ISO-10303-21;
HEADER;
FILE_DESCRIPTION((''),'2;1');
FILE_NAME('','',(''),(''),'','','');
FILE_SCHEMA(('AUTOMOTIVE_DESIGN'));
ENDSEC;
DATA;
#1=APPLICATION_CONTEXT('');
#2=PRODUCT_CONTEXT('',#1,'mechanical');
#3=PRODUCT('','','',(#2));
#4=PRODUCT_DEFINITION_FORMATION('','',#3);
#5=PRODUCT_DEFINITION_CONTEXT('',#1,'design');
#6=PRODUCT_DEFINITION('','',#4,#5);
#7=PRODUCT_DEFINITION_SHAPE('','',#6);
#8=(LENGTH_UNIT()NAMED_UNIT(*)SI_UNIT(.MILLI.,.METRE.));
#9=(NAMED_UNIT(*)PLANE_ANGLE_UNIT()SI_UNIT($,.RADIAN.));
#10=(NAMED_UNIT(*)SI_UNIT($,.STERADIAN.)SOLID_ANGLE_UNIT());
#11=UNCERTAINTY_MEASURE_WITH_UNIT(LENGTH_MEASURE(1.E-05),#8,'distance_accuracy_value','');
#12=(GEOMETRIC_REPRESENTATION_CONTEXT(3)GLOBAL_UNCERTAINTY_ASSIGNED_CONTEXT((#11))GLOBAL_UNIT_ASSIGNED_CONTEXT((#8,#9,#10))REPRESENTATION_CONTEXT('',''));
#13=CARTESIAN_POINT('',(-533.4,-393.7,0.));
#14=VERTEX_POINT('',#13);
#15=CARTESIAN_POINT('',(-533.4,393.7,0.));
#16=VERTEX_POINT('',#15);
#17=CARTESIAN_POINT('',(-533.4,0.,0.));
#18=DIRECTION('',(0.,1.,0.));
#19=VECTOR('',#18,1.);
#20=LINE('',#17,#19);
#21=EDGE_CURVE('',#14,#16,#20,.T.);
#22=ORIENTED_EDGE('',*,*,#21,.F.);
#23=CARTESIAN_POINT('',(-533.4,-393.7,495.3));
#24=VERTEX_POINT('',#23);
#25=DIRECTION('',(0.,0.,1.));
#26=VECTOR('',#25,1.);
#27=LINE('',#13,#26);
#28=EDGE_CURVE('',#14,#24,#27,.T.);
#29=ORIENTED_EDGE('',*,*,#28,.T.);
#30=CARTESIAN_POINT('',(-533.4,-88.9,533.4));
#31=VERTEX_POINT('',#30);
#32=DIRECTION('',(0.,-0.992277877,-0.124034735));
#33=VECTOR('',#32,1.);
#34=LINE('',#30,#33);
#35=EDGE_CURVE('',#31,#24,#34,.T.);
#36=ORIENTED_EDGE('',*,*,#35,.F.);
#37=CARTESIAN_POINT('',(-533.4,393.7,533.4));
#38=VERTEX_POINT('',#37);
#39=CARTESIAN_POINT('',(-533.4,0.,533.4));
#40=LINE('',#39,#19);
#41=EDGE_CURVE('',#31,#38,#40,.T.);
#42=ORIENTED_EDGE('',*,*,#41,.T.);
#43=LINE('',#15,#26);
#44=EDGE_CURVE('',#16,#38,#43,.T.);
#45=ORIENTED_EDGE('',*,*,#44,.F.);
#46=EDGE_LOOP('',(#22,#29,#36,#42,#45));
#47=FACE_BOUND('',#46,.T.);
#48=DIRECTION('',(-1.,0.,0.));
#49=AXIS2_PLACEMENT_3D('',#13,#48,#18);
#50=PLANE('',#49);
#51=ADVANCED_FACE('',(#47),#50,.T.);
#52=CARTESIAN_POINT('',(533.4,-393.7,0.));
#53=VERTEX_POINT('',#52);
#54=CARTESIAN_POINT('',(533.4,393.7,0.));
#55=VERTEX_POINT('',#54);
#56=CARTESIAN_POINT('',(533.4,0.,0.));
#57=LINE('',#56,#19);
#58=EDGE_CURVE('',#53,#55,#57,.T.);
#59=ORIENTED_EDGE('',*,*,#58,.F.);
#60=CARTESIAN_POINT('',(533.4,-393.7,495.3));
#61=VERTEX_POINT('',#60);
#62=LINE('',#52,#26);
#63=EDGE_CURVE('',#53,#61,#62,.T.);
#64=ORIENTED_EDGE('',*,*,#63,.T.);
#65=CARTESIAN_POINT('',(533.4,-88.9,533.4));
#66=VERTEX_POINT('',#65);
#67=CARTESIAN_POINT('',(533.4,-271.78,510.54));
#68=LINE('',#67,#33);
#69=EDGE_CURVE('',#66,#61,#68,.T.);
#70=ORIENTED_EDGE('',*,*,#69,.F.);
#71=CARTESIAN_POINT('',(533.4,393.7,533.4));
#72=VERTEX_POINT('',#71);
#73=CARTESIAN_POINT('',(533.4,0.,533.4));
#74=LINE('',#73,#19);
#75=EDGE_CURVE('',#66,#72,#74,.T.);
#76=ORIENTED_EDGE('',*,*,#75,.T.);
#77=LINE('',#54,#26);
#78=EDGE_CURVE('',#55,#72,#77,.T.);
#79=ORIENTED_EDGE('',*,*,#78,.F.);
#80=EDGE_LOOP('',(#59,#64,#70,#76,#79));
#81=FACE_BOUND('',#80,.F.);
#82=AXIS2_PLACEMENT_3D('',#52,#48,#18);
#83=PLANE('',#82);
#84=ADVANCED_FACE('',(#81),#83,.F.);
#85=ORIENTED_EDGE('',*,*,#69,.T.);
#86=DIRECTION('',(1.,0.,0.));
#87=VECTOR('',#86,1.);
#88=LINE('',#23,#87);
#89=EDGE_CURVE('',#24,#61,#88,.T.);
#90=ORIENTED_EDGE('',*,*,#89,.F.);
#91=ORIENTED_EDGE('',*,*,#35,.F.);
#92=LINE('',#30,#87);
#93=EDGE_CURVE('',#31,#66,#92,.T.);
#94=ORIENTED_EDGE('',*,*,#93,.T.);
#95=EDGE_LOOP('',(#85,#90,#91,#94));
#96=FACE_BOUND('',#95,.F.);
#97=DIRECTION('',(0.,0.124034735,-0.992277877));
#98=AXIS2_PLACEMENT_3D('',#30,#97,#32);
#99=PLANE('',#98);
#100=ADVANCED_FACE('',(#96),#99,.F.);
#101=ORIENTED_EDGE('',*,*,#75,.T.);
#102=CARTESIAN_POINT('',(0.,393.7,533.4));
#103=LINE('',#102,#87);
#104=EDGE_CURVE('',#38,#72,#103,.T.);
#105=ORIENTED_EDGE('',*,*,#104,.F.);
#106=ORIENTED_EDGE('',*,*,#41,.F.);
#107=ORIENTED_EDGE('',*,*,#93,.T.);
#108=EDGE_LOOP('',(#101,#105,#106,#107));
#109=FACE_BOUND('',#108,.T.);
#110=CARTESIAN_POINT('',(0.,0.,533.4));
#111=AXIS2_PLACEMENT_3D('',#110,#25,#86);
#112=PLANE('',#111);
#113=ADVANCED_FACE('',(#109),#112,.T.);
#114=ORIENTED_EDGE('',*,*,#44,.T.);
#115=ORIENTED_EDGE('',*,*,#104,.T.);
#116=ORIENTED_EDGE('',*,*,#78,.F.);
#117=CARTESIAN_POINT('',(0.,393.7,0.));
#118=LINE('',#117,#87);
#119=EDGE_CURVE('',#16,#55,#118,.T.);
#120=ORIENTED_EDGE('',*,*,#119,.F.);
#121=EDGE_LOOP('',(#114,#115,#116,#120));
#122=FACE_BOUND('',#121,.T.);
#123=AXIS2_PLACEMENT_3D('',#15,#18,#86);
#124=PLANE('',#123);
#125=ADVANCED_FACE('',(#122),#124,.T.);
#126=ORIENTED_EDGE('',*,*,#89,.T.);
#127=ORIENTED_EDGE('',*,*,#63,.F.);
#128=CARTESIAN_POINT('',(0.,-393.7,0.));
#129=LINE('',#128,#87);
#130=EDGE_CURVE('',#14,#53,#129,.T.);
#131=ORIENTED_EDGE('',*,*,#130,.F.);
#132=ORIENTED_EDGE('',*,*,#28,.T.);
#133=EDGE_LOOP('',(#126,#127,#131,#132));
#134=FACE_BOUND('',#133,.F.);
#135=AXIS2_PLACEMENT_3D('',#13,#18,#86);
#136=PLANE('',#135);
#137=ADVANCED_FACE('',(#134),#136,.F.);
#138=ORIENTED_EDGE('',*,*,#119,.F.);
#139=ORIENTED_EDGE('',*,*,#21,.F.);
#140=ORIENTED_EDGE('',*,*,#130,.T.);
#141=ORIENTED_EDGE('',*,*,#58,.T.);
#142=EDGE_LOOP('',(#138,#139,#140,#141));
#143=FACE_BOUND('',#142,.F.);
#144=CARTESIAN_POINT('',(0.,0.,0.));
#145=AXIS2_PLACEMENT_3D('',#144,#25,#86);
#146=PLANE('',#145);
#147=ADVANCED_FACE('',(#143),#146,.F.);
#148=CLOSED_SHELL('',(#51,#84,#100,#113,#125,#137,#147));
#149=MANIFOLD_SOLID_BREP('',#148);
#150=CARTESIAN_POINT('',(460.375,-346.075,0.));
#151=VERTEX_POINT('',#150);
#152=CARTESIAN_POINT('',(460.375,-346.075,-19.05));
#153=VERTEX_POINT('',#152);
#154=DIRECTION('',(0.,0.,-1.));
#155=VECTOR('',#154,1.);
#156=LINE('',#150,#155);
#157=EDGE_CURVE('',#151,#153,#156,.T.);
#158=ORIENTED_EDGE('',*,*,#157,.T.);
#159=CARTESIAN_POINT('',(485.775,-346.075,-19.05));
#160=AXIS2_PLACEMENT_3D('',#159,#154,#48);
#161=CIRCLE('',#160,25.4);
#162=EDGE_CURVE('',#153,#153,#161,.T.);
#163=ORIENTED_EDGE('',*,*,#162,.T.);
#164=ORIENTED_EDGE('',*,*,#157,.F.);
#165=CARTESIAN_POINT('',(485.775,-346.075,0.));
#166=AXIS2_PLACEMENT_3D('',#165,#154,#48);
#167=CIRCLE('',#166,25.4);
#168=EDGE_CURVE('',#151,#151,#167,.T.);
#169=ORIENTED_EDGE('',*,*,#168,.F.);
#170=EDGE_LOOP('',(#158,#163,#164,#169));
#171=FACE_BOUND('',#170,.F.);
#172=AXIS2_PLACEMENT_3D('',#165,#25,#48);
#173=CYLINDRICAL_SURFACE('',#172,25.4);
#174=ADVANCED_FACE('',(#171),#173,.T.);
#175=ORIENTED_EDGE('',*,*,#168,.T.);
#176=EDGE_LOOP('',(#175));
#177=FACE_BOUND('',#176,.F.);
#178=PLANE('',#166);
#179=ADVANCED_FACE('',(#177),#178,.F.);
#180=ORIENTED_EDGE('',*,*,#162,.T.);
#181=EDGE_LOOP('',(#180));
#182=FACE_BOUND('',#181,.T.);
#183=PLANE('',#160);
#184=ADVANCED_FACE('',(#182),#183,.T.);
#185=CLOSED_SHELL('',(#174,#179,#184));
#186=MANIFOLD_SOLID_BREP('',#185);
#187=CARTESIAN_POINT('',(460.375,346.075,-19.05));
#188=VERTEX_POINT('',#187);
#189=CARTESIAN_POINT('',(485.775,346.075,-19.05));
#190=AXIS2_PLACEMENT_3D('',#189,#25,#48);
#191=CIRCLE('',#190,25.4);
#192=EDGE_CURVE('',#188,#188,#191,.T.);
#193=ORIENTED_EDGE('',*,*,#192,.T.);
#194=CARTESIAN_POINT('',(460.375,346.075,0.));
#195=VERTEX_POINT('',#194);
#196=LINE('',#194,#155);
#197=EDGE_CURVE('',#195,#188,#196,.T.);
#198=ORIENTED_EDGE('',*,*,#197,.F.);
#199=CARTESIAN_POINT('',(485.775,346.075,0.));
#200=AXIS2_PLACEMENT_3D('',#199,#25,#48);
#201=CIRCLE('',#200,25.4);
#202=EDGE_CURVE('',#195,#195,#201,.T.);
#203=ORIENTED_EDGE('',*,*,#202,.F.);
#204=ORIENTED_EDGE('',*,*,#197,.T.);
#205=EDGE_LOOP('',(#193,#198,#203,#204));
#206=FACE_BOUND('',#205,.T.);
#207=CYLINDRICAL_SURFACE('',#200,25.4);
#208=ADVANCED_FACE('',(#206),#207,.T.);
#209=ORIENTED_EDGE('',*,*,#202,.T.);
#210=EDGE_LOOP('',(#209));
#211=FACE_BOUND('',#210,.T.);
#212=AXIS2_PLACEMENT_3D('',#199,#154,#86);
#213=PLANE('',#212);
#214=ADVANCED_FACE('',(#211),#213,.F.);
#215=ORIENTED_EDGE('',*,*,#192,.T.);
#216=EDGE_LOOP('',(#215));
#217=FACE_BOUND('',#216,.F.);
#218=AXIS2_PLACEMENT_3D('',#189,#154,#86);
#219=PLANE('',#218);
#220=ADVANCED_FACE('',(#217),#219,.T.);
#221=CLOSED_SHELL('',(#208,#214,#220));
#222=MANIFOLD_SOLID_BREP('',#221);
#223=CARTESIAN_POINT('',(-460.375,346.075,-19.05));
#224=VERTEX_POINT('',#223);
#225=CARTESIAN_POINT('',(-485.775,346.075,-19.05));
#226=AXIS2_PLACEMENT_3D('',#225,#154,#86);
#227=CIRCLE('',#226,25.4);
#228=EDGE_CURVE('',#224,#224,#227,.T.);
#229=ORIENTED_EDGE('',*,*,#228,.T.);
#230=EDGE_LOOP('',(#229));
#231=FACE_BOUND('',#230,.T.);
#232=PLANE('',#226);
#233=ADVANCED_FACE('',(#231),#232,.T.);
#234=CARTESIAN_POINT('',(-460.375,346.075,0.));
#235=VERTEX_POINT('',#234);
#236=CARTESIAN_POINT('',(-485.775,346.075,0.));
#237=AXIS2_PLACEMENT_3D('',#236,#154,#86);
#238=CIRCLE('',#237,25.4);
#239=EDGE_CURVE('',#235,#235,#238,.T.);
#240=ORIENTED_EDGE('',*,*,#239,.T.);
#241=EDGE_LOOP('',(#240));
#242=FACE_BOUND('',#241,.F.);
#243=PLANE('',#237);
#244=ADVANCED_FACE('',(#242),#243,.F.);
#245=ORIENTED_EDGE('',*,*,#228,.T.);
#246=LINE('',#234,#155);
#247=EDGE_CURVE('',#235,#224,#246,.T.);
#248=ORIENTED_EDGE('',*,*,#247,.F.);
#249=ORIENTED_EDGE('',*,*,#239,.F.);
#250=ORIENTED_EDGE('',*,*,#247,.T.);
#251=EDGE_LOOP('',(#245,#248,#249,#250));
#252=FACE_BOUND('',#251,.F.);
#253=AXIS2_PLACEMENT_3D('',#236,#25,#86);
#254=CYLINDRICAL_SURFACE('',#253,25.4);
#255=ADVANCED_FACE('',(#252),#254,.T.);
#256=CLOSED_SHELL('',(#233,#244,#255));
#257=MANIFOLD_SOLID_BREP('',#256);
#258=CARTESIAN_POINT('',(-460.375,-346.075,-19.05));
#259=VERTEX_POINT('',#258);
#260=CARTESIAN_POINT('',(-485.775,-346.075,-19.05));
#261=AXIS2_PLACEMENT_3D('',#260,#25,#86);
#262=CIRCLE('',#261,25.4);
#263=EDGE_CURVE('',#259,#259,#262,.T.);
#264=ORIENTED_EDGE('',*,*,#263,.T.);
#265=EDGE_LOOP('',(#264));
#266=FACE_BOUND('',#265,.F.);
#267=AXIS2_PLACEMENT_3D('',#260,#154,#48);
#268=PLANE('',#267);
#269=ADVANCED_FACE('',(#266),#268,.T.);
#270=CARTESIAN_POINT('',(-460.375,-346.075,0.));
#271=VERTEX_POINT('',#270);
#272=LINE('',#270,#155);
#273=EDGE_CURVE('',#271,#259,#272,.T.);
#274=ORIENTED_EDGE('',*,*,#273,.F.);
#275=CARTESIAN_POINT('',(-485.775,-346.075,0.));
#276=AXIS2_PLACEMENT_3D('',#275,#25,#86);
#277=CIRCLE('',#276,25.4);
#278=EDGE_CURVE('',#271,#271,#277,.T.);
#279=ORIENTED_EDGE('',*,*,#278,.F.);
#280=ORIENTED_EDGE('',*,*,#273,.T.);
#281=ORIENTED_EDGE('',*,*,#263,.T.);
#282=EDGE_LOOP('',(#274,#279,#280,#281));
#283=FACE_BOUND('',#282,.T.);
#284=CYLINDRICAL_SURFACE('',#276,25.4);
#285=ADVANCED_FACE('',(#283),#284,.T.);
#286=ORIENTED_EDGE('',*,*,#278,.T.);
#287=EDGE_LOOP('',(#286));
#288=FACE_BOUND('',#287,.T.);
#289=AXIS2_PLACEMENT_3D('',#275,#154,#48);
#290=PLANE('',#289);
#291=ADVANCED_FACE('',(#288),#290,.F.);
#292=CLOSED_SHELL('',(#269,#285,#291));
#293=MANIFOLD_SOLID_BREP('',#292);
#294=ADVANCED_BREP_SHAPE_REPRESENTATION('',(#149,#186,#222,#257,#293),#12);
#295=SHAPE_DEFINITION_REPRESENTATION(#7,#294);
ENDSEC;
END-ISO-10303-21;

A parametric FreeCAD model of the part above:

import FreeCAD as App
import Part
import Sketcher
Q = App.Units.Quantity


def add_polygon(sketch, points):
    """Adds a closed chain of lines whose ends are joined by coincident constraints."""
    first, n = sketch.GeometryCount, len(points)
    for a, b in zip(points, points[1:] + points[:1]):
        sketch.addGeometry(Part.LineSegment(App.Vector(*a, 0), App.Vector(*b, 0)), False)
    for i in range(n):
        sketch.addConstraint(Sketcher.Constraint("Coincident", first + i, 2, first + (i + 1) % n, 1))

doc = App.newDocument("Part")
body = doc.addObject("PartDesign::Body", "Body")

sketch1 = body.newObject("Sketcher::SketchObject", "Sketch")
sketch1.AttachmentSupport = (doc.getObject("XY_Plane"), [""])
sketch1.MapMode = "FlatFace"
add_polygon(sketch1, [(-533.4, 393.7), (-533.4, -393.7), (533.4, -393.7), (533.4, 393.7)])
sketch1.addConstraint([
    Sketcher.Constraint("Vertical", 0),
    Sketcher.Constraint("Horizontal", 1),
    Sketcher.Constraint("Vertical", 2),
    Sketcher.Constraint("Horizontal", 3),
    Sketcher.Constraint("Symmetric", 0, 2, 2, 2, -1, 1),
    Sketcher.Constraint("DistanceX", 1, 1, 1, 2, Q("42 in")),
    Sketcher.Constraint("DistanceY", 0, 2, 0, 1, Q("31 in")),
])
pad1 = body.newObject("PartDesign::Pad", "Pad")
pad1.Profile = sketch1
pad1.Length = Q("21 in")

sketch2 = body.newObject("Sketcher::SketchObject", "Sketch001")
sketch2.AttachmentSupport = (doc.getObject("YZ_Plane"), [""])
sketch2.MapMode = "FlatFace"
sketch2.AttachmentOffset = App.Placement(App.Vector(0, 0, -21 * 25.4), App.Rotation())
add_polygon(sketch2, [(-393.7, 533.4), (-88.9, 533.4), (-393.7, 495.3)])
sketch2.addConstraint([
    Sketcher.Constraint("Horizontal", 0),
    Sketcher.Constraint("Vertical", 2),
    Sketcher.Constraint("DistanceX", 0, 1, 0, 2, Q("12 in")),
    Sketcher.Constraint("DistanceY", 2, 1, 2, 2, Q("1.5 in")),
    Sketcher.Constraint("DistanceY", -1, 1, 0, 2, Q("21 in")),
    Sketcher.Constraint("DistanceX", 0, 2, -1, 1, Q("3.5 in")),
])
pocket1 = body.newObject("PartDesign::Pocket", "Pocket")
pocket1.Profile = sketch2
pocket1.Type = "ThroughAll"
pocket1.Reversed = True
body2 = doc.addObject("PartDesign::Body", "Body001")

sketch3 = body2.newObject("Sketcher::SketchObject", "Sketch002")
sketch3.AttachmentSupport = (doc.getObject("XY_Plane001"), [""])
sketch3.MapMode = "FlatFace"
sketch3.addGeometry(Part.Circle(App.Vector(-485.775, 346.075, 0), App.Vector(0, 0, 1), 25.4), False)
sketch3.addConstraint([
    Sketcher.Constraint("Diameter", 0, Q("2 in")),
    Sketcher.Constraint("DistanceX", 0, 3, -1, 1, Q("19.125 in")),
    Sketcher.Constraint("DistanceY", -1, 1, 0, 3, Q("13.625 in")),
])
pad2 = body2.newObject("PartDesign::Pad", "Pad001")
pad2.Profile = sketch3
pad2.Length = Q("0.75 in")
pad2.Reversed = True
body3 = doc.addObject("PartDesign::Body", "Body002")
doc.recompute()

mirroring = doc.addObject("Part::Mirroring", "Mirroring")
mirroring.Source = body2
mirroring.Base = App.Vector(0, 0, 0)
mirroring.Normal = App.Vector(0, -1, 0)
body3.BaseFeature = mirroring
doc.recompute()
body4 = doc.addObject("PartDesign::Body", "Body003")
doc.recompute()

mirroring2 = doc.addObject("Part::Mirroring", "Mirroring001")
mirroring2.Source = body2
mirroring2.Base = App.Vector(0, 0, 0)
mirroring2.Normal = App.Vector(1, 0, 0)
body4.BaseFeature = mirroring2
doc.recompute()
body5 = doc.addObject("PartDesign::Body", "Body004")
doc.recompute()

mirroring3 = doc.addObject("Part::Mirroring", "Mirroring002")
mirroring3.Source = body3
mirroring3.Base = App.Vector(0, 0, 0)
mirroring3.Normal = App.Vector(1, 0, 0)
body5.BaseFeature = mirroring3
doc.recompute()
mirroring.Visibility = False
mirroring2.Visibility = False
mirroring3.Visibility = False

doc.recompute()
